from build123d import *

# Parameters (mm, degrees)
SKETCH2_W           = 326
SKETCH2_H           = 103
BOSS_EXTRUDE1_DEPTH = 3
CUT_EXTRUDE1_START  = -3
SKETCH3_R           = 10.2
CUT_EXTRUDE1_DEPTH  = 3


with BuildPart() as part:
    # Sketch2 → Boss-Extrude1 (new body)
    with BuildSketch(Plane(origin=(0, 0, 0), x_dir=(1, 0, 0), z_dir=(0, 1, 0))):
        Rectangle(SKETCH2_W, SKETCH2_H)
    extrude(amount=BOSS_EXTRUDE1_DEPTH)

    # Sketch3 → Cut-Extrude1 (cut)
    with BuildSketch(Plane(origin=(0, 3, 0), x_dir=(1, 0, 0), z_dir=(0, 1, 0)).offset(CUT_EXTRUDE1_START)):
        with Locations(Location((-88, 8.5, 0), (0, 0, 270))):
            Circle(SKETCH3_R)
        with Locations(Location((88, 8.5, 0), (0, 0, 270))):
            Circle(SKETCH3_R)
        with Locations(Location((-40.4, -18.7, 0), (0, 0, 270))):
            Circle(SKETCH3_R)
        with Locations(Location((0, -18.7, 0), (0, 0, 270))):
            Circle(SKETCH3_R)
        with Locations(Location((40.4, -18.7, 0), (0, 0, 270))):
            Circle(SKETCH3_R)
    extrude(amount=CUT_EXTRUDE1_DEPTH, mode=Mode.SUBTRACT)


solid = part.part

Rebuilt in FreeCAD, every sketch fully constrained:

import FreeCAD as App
import Part
import Sketcher

V = App.Vector


def add_polygon(sketch, points):
    """Adds a closed chain of lines whose ends are joined by coincident constraints."""
    first, n = sketch.GeometryCount, len(points)
    for a, b in zip(points, points[1:] + points[:1]):
        sketch.addGeometry(Part.LineSegment(App.Vector(*a, 0), App.Vector(*b, 0)), False)
    for i in range(n):
        sketch.addConstraint(Sketcher.Constraint("Coincident", first + i, 2, first + (i + 1) % n, 1))

doc = App.newDocument("Part")
body = doc.addObject("PartDesign::Body", "Body")

# Sketch on XZ plane
sketch1 = body.newObject("Sketcher::SketchObject", "Sketch")
sketch1.AttachmentSupport = (doc.getObject("XZ_Plane"), [""])
sketch1.MapMode = "FlatFace"
add_polygon(sketch1, [(-163, -52), (-163, 52), (163, 52), (163, -52)])  # lines 0-3
sketch1.addConstraint(Sketcher.Constraint("Vertical", 0))
sketch1.addConstraint(Sketcher.Constraint("Horizontal", 1))
sketch1.addConstraint(Sketcher.Constraint("Vertical", 2))
sketch1.addConstraint(Sketcher.Constraint("Horizontal", 3))
sketch1.addConstraint(Sketcher.Constraint("Symmetric", 0, 2, 2, 2, -1, 1))
sketch1.addConstraint(Sketcher.Constraint("DistanceX", 1, 1, 1, 2, 326.0))
sketch1.addConstraint(Sketcher.Constraint("DistanceY", 0, 1, 0, 2, 103.0))
pad1 = body.newObject("PartDesign::Pad", "Pad")
pad1.Profile = sketch1
pad1.Length = 3
pad1.Reversed = True

# Sketch on XZ plane
sketch2 = body.newObject("Sketcher::SketchObject", "Sketch001")
sketch2.AttachmentSupport = (doc.getObject("XZ_Plane"), [""])
sketch2.MapMode = "FlatFace"
sketch2.addGeometry(Part.Circle(V(-88, -8, 0), V(0, 0, 1), 10), False)
sketch2.addGeometry(Part.Circle(V(88, -8, 0), V(0, 0, 1), 10), False)
sketch2.addGeometry(Part.Circle(V(-40, 19, 0), V(0, 0, 1), 10), False)
sketch2.addGeometry(Part.Circle(V(0, 19, 0), V(0, 0, 1), 10), False)
sketch2.addGeometry(Part.Circle(V(40, 19, 0), V(0, 0, 1), 10), False)
sketch2.addConstraint(Sketcher.Constraint("Equal", 0, 1))
sketch2.addConstraint(Sketcher.Constraint("Equal", 1, 2))
sketch2.addConstraint(Sketcher.Constraint("Equal", 2, 3))
sketch2.addConstraint(Sketcher.Constraint("Equal", 3, 4))
sketch2.addConstraint(Sketcher.Constraint("Symmetric", 0, 3, 1, 3, -2))
sketch2.addConstraint(Sketcher.Constraint("Symmetric", 2, 3, 4, 3, -2))
sketch2.addConstraint(Sketcher.Constraint("PointOnObject", 3, 3, -2))
sketch2.addConstraint(Sketcher.Constraint("Horizontal", 2, 3, 3, 3))
sketch2.addConstraint(Sketcher.Constraint("Diameter", 0, 20.4))
sketch2.addConstraint(Sketcher.Constraint("DistanceX", 0, 3, -1, 1, 88.0))
sketch2.addConstraint(Sketcher.Constraint("DistanceY", 0, 3, -1, 1, 8.5))
sketch2.addConstraint(Sketcher.Constraint("DistanceX", 2, 3, -1, 1, 40.4))
sketch2.addConstraint(Sketcher.Constraint("DistanceY", -1, 1, 2, 3, 18.7))
pocket1 = body.newObject("PartDesign::Pocket", "Pocket")
pocket1.Profile = sketch2
pocket1.Length = 3

doc.recompute()
